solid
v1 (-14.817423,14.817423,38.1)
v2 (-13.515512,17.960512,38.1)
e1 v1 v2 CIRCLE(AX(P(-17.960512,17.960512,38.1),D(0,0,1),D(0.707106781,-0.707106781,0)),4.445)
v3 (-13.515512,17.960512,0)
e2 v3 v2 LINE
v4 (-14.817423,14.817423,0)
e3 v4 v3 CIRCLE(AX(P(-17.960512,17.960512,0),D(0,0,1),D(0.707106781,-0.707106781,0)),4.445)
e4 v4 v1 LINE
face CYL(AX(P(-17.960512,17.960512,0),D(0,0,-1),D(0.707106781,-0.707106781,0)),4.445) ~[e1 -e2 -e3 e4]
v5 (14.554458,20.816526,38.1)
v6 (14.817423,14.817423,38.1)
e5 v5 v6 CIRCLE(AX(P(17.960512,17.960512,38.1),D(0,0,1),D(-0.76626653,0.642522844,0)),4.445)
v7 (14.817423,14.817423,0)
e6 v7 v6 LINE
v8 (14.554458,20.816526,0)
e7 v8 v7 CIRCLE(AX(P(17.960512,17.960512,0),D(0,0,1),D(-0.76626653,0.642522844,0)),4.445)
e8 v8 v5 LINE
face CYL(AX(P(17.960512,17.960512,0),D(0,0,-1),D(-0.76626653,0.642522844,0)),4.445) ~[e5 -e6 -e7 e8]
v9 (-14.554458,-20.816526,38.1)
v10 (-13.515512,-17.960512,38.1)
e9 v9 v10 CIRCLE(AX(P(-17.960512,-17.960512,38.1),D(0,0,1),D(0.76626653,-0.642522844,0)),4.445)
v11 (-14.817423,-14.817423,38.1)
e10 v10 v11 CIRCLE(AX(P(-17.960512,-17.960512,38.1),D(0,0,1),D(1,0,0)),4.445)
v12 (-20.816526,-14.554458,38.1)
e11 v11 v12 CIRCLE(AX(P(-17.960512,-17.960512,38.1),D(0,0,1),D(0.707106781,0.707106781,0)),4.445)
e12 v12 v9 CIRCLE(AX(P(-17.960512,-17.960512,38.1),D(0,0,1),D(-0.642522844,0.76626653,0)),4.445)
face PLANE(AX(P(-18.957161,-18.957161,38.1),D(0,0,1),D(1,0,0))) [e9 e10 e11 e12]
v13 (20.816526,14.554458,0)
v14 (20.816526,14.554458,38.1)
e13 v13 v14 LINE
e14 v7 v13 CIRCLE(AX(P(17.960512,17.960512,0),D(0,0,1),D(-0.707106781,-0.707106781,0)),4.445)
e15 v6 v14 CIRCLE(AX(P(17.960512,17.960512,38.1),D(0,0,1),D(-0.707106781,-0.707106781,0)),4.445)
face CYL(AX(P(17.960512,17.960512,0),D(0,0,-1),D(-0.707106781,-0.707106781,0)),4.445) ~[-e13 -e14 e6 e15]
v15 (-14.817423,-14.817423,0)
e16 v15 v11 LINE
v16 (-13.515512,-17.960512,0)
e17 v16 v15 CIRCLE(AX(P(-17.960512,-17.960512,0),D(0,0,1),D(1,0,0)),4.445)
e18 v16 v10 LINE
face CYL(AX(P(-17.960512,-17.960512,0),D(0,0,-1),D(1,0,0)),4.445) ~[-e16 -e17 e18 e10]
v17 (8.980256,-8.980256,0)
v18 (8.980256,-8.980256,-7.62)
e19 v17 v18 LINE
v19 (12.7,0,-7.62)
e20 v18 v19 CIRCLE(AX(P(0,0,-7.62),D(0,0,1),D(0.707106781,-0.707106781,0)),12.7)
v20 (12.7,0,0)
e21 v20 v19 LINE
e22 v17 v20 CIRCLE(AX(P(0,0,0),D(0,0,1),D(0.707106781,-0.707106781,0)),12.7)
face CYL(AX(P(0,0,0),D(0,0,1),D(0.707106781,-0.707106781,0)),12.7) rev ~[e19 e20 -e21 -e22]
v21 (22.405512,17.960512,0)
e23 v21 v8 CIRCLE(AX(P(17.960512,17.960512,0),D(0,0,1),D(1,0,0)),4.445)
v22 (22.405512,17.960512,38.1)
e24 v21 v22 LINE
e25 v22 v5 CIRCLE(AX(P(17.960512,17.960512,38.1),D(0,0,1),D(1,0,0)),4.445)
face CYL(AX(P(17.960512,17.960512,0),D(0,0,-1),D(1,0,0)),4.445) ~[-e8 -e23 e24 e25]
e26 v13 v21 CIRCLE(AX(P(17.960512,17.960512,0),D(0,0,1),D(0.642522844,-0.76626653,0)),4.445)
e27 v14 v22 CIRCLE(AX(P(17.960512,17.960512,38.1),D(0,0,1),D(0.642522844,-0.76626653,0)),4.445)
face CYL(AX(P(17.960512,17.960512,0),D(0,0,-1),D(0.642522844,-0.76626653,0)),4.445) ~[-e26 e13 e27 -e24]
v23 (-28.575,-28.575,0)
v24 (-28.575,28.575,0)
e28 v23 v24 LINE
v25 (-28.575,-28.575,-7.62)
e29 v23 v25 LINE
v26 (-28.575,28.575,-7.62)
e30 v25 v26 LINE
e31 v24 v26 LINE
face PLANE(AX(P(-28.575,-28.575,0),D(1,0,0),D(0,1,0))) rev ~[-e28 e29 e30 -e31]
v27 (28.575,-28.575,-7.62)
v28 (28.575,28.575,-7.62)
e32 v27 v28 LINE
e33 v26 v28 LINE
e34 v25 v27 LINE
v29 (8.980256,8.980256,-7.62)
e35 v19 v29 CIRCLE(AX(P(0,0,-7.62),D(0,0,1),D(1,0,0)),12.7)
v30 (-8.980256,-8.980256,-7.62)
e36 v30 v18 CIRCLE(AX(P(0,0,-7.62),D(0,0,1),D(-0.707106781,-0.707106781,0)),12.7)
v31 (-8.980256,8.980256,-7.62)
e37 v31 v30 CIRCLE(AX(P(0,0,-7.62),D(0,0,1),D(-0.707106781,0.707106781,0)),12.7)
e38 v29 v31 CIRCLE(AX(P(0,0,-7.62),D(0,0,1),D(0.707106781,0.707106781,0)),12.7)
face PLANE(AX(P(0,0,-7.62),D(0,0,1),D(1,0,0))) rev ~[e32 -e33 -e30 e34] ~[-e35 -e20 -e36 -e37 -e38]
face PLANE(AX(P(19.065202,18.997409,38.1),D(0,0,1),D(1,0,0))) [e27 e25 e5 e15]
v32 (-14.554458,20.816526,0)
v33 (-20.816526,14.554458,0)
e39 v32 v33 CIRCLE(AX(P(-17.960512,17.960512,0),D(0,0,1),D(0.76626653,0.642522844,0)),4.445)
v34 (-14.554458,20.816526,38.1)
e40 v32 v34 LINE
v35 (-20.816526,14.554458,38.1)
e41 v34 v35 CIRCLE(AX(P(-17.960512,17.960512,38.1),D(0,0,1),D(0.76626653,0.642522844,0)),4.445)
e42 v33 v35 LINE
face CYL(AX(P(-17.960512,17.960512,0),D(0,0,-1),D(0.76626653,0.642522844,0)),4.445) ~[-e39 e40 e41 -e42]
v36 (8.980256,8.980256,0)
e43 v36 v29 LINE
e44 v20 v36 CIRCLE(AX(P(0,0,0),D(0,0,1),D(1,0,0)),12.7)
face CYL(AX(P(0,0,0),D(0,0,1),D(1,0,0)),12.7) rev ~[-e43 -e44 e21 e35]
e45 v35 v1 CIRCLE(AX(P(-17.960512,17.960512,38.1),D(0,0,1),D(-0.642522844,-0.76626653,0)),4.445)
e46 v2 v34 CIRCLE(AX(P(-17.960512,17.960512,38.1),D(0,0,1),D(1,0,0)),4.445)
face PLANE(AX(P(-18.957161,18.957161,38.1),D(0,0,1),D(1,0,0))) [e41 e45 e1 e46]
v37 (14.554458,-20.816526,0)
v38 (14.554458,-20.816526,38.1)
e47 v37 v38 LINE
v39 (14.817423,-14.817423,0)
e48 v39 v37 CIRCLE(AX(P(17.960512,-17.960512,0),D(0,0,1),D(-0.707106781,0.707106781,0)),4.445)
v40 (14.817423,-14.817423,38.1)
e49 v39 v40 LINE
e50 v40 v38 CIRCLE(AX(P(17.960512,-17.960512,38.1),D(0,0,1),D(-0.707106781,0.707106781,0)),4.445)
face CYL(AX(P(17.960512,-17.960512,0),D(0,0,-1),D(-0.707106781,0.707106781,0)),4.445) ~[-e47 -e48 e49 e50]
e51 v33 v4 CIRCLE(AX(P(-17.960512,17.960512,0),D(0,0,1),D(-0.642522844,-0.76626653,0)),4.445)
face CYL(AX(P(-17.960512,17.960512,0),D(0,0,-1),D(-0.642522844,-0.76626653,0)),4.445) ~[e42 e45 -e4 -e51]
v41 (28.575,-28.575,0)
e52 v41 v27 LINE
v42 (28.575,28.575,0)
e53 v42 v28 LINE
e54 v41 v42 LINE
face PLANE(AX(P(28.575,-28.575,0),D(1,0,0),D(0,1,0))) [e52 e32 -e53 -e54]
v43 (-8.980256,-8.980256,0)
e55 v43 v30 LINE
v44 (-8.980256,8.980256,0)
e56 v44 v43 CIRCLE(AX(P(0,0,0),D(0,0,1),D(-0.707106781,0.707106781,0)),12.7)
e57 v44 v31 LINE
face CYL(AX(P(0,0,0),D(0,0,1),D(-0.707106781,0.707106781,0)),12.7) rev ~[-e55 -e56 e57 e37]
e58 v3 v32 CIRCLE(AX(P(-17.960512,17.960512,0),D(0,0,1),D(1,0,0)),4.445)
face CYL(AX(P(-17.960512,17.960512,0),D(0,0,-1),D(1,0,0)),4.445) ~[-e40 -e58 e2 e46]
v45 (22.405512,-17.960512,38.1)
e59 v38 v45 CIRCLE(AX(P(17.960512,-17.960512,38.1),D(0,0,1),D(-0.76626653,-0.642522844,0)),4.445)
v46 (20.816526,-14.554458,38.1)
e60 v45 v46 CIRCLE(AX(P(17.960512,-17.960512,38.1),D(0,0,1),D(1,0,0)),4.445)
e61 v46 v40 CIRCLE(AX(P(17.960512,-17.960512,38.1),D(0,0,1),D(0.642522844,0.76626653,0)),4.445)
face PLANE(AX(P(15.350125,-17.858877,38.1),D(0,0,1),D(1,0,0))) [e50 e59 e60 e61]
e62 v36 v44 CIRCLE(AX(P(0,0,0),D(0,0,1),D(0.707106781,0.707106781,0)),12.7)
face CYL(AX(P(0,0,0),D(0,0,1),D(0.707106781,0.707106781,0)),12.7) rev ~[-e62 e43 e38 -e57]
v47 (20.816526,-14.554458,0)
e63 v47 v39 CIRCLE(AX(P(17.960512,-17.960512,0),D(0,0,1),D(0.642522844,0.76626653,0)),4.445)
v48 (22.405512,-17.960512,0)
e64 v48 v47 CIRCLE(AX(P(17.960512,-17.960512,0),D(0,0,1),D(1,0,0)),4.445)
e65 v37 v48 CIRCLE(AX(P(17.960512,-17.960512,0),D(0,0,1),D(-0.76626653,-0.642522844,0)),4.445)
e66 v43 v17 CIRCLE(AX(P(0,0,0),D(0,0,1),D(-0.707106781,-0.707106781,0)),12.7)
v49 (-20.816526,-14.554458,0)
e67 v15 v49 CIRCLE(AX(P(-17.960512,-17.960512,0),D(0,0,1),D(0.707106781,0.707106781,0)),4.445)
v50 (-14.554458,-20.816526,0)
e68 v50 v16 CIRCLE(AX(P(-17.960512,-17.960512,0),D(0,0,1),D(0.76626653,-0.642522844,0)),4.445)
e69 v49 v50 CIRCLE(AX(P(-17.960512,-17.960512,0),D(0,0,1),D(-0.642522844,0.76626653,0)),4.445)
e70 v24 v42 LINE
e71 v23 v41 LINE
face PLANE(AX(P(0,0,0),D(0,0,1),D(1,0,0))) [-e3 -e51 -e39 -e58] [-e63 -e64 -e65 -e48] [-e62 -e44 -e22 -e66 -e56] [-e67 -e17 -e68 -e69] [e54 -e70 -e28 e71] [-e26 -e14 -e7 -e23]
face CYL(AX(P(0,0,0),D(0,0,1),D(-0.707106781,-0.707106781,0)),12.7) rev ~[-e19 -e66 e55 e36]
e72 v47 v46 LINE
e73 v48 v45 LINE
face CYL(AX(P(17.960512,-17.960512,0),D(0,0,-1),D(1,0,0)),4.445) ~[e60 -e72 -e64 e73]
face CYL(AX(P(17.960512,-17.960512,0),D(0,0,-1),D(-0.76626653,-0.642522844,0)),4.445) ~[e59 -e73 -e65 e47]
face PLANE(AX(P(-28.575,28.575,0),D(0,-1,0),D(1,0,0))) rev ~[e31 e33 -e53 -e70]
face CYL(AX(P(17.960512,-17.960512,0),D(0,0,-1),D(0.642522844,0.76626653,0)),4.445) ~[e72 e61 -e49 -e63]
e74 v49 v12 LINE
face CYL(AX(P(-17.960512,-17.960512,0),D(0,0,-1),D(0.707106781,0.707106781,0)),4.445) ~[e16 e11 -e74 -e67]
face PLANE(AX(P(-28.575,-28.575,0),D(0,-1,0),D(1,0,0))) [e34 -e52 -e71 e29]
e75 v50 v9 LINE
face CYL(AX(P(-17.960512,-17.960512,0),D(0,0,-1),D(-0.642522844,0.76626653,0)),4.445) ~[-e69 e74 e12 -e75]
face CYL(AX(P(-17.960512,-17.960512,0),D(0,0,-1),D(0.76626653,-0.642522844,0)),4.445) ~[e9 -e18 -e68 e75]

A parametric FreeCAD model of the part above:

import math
import FreeCAD as App
import Part
import Sketcher

V = App.Vector
Q = App.Units.Quantity

doc = App.newDocument("Part")
body = doc.addObject("PartDesign::Body", "Body")

# Sketch on XY plane
sketch1 = body.newObject("Sketcher::SketchObject", "Sketch")
sketch1.AttachmentSupport = (doc.getObject("XY_Plane"), [""])
sketch1.MapMode = "FlatFace"
sketch1.addGeometry([
    Part.LineSegment(V(-29, 29, 0), V(-29, -29, 0)),
    Part.LineSegment(V(-29, -29, 0), V(29, -29, 0)),
    Part.LineSegment(V(29, -29, 0), V(29, 29, 0)),
    Part.LineSegment(V(29, 29, 0), V(-29, 29, 0)),
], False)
sketch1.addConstraint([
    Sketcher.Constraint("Coincident", 0, 2, 1, 1),
    Sketcher.Constraint("Coincident", 1, 2, 2, 1),
    Sketcher.Constraint("Coincident", 2, 2, 3, 1),
    Sketcher.Constraint("Coincident", 3, 2, 0, 1),
    Sketcher.Constraint("Vertical", 0),
    Sketcher.Constraint("Horizontal", 1),
    Sketcher.Constraint("Vertical", 2),
    Sketcher.Constraint("Horizontal", 3),
    Sketcher.Constraint("Symmetric", 0, 2, 2, 2, -1, 1),
    Sketcher.Constraint("Equal", 3, 0),
    Sketcher.Constraint("DistanceX", 1, 1, 1, 2, Q("2.25 in")),
])
pad1 = body.newObject("PartDesign::Pad", "Pad")
pad1.Profile = sketch1
pad1.Length = Q("0.3 in")
pad1.Reversed = True

# Sketch on XY plane
sketch2 = body.newObject("Sketcher::SketchObject", "Sketch001")
sketch2.AttachmentSupport = (doc.getObject("XY_Plane"), [""])
sketch2.MapMode = "FlatFace"
sketch2.addGeometry([
    Part.ArcOfCircle(Part.Circle(V(0, 0, 0), V(0, 0, 1), 13), math.radians(-135), math.radians(-45)),  # 0
    Part.ArcOfCircle(Part.Circle(V(0, 0, 0), V(0, 0, 1), 13), math.radians(-45), math.radians(0)),  # 1
    Part.ArcOfCircle(Part.Circle(V(0, 0, 0), V(0, 0, 1), 13), math.radians(0), math.radians(45)),  # 2
    Part.ArcOfCircle(Part.Circle(V(0, 0, 0), V(0, 0, 1), 13), math.radians(45), math.radians(135)),  # 3
    Part.ArcOfCircle(Part.Circle(V(0, 0, 0), V(0, 0, 1), 13), math.radians(135), math.radians(225)),  # 4
], False)
sketch2.addConstraint([
    Sketcher.Constraint("Tangent", 0, 2, 1, 1),
    Sketcher.Constraint("Tangent", 1, 2, 2, 1),
    Sketcher.Constraint("Tangent", 2, 2, 3, 1),
    Sketcher.Constraint("Tangent", 3, 2, 4, 1),
    Sketcher.Constraint("Tangent", 4, 2, 0, 1),
    Sketcher.Constraint("Coincident", 0, 3, -1, 1),
    Sketcher.Constraint("Coincident", 2, 3, -1, 1),
    Sketcher.Constraint("PointOnObject", 1, 2, -1),
    Sketcher.Constraint("Horizontal", 2, 2, 3, 2),
    Sketcher.Constraint("Horizontal", 0, 2, 4, 2),
    Sketcher.Constraint("Vertical", 0, 2, 2, 2),
    Sketcher.Constraint("Radius", 0, Q("0.5 in")),
    Sketcher.Constraint("DistanceX", -1, 1, 0, 2, Q("8.980256 mm")),
])
pocket1 = body.newObject("PartDesign::Pocket", "Pocket")
pocket1.Profile = sketch2
pocket1.Length = Q("0.3 in")

# Sketch on XY plane
sketch3 = body.newObject("Sketcher::SketchObject", "Sketch002")
sketch3.AttachmentSupport = (doc.getObject("XY_Plane"), [""])
sketch3.MapMode = "FlatFace"
sketch3.addGeometry([
    Part.ArcOfCircle(Part.Circle(V(-18, -18, 0), V(0, 0, 1), 4.4), math.radians(130), math.radians(320)),  # 0
    Part.ArcOfCircle(Part.Circle(V(-18, -18, 0), V(0, 0, 1), 4.4), math.radians(-40), math.radians(0)),  # 1
    Part.ArcOfCircle(Part.Circle(V(-18, -18, 0), V(0, 0, 1), 4.4), math.radians(0), math.radians(45)),  # 2
    Part.ArcOfCircle(Part.Circle(V(-18, -18, 0), V(0, 0, 1), 4.4), math.radians(45), math.radians(130)),  # 3
    Part.ArcOfCircle(Part.Circle(V(18, -18, 0), V(0, 0, 1), 4.4), math.radians(50), math.radians(135)),  # 4
    Part.ArcOfCircle(Part.Circle(V(18, -18, 0), V(0, 0, 1), 4.4), math.radians(135), math.radians(220)),  # 5
    Part.ArcOfCircle(Part.Circle(V(18, -18, 0), V(0, 0, 1), 4.4), math.radians(-140), math.radians(0)),  # 6
    Part.ArcOfCircle(Part.Circle(V(18, -18, 0), V(0, 0, 1), 4.4), math.radians(0), math.radians(50)),  # 7
    Part.ArcOfCircle(Part.Circle(V(18, 18, 0), V(0, 0, 1), 4.4), math.radians(-50), math.radians(0)),  # 8
    Part.ArcOfCircle(Part.Circle(V(18, 18, 0), V(0, 0, 1), 4.4), math.radians(0), math.radians(140)),  # 9
    Part.ArcOfCircle(Part.Circle(V(18, 18, 0), V(0, 0, 1), 4.4), math.radians(140), math.radians(225)),  # 10
    Part.ArcOfCircle(Part.Circle(V(18, 18, 0), V(0, 0, 1), 4.4), math.radians(-135), math.radians(-50)),  # 11
    Part.ArcOfCircle(Part.Circle(V(-18, 18, 0), V(0, 0, 1), 4.4), math.radians(40), math.radians(230)),  # 12
    Part.ArcOfCircle(Part.Circle(V(-18, 18, 0), V(0, 0, 1), 4.4), math.radians(-130), math.radians(-45)),  # 13
    Part.ArcOfCircle(Part.Circle(V(-18, 18, 0), V(0, 0, 1), 4.4), math.radians(-45), math.radians(0)),  # 14
    Part.ArcOfCircle(Part.Circle(V(-18, 18, 0), V(0, 0, 1), 4.4), math.radians(0), math.radians(40)),  # 15
], False)
sketch3.addConstraint([
    Sketcher.Constraint("Tangent", 0, 2, 1, 1),
    Sketcher.Constraint("Tangent", 1, 2, 2, 1),
    Sketcher.Constraint("Tangent", 2, 2, 3, 1),
    Sketcher.Constraint("Tangent", 3, 2, 0, 1),
    Sketcher.Constraint("Tangent", 4, 2, 5, 1),
    Sketcher.Constraint("Tangent", 5, 2, 6, 1),
    Sketcher.Constraint("Tangent", 6, 2, 7, 1),
    Sketcher.Constraint("Tangent", 7, 2, 4, 1),
    Sketcher.Constraint("Tangent", 8, 2, 9, 1),
    Sketcher.Constraint("Tangent", 9, 2, 10, 1),
    Sketcher.Constraint("Tangent", 10, 2, 11, 1),
    Sketcher.Constraint("Tangent", 11, 2, 8, 1),
    Sketcher.Constraint("Tangent", 12, 2, 13, 1),
    Sketcher.Constraint("Tangent", 13, 2, 14, 1),
    Sketcher.Constraint("Tangent", 14, 2, 15, 1),
    Sketcher.Constraint("Tangent", 15, 2, 12, 1),
    Sketcher.Constraint("Equal", 0, 1),
    Sketcher.Constraint("Equal", 3, 4),
    Sketcher.Constraint("Equal", 4, 5),
    Sketcher.Constraint("Equal", 7, 8),
    Sketcher.Constraint("Equal", 8, 9),
    Sketcher.Constraint("Equal", 11, 12),
    Sketcher.Constraint("Equal", 12, 13),
    Sketcher.Constraint("Symmetric", 0, 3, 8, 3, -1, 1),
    Sketcher.Constraint("Symmetric", 4, 3, 12, 3, -1, 1),
    Sketcher.Constraint("Symmetric", 0, 3, 4, 3, -2),
    Sketcher.Constraint("Horizontal", 7, 3, 1, 2),
    Sketcher.Constraint("Horizontal", 2, 2, 4, 2),
    Sketcher.Constraint("Horizontal", 0, 2, 5, 2),
    Sketcher.Constraint("Horizontal", 1, 2, 6, 2),
    Sketcher.Constraint("Horizontal", 3, 2, 7, 2),
    Sketcher.Constraint("Horizontal", 15, 3, 8, 2),
    Sketcher.Constraint("Horizontal", 11, 2, 12, 2),
    Sketcher.Constraint("Horizontal", 10, 2, 13, 2),
    Sketcher.Constraint("Horizontal", 8, 2, 14, 2),
    Sketcher.Constraint("Horizontal", 9, 2, 15, 2),
    Sketcher.Constraint("Vertical", 5, 2, 9, 2),
    Sketcher.Constraint("Vertical", 4, 2, 10, 2),
    Sketcher.Constraint("Vertical", 7, 2, 11, 2),
    Sketcher.Constraint("Radius", 0, Q("0.175 in")),
    Sketcher.Constraint("DistanceX", 0, 2, 4, 3, Q("32.51497 mm")),
    Sketcher.Constraint("DistanceX", 2, 2, 1, 2, Q("1.30191 mm")),
    Sketcher.Constraint("DistanceY", 7, 2, 8, 2, Q("32.51497 mm")),
    Sketcher.Constraint("DistanceX", 0, 3, -1, 1, Q("17.960512 mm")),
    Sketcher.Constraint("DistanceY", 0, 3, -1, 1, Q("17.960512 mm")),
])
pad2 = body.newObject("PartDesign::Pad", "Pad001")
pad2.Profile = sketch3
pad2.Length = Q("1.5 in")

doc.recompute()
